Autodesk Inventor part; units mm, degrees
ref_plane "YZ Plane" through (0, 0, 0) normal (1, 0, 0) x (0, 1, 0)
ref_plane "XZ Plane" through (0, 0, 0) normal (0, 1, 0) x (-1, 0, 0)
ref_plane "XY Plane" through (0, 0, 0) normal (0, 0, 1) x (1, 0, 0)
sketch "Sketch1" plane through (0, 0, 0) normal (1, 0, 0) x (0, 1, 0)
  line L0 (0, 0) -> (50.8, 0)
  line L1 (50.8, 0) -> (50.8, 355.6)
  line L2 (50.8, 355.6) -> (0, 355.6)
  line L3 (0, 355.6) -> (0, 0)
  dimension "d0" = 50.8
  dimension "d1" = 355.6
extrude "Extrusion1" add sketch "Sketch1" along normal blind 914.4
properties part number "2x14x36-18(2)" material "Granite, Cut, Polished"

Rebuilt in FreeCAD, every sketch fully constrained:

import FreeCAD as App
import Part
import Sketcher
Q = App.Units.Quantity


def add_polygon(sketch, points):
    """Adds a closed chain of lines whose ends are joined by coincident constraints."""
    first, n = sketch.GeometryCount, len(points)
    for a, b in zip(points, points[1:] + points[:1]):
        sketch.addGeometry(Part.LineSegment(App.Vector(*a, 0), App.Vector(*b, 0)), False)
    for i in range(n):
        sketch.addConstraint(Sketcher.Constraint("Coincident", first + i, 2, first + (i + 1) % n, 1))

doc = App.newDocument("Part")
body = doc.addObject("PartDesign::Body", "Body")

sketch1 = doc.addObject("Sketcher::SketchObject", "Sketch")
body.addObject(sketch1)
sketch1.AttachmentSupport = (doc.YZ_Plane, [""])
sketch1.MapMode = "FlatFace"
add_polygon(sketch1, [(0, 355.6), (0, 0), (50.8, 0), (50.8, 355.6)])
sketch1.addConstraint([
    Sketcher.Constraint("Vertical", 0),
    Sketcher.Constraint("Horizontal", 1),
    Sketcher.Constraint("Vertical", 2),
    Sketcher.Constraint("Horizontal", 3),
    Sketcher.Constraint("Coincident", 0, 2, -1, 1),
    Sketcher.Constraint("DistanceX", 1, 1, 1, 2, Q("2 in")),
    Sketcher.Constraint("DistanceY", 0, 2, 0, 1, Q("14 in")),
])
pad1 = doc.addObject("PartDesign::Pad", "Pad")
body.addObject(pad1)
pad1.Profile = sketch1
pad1.Length = Q("36 in")

doc.recompute()
